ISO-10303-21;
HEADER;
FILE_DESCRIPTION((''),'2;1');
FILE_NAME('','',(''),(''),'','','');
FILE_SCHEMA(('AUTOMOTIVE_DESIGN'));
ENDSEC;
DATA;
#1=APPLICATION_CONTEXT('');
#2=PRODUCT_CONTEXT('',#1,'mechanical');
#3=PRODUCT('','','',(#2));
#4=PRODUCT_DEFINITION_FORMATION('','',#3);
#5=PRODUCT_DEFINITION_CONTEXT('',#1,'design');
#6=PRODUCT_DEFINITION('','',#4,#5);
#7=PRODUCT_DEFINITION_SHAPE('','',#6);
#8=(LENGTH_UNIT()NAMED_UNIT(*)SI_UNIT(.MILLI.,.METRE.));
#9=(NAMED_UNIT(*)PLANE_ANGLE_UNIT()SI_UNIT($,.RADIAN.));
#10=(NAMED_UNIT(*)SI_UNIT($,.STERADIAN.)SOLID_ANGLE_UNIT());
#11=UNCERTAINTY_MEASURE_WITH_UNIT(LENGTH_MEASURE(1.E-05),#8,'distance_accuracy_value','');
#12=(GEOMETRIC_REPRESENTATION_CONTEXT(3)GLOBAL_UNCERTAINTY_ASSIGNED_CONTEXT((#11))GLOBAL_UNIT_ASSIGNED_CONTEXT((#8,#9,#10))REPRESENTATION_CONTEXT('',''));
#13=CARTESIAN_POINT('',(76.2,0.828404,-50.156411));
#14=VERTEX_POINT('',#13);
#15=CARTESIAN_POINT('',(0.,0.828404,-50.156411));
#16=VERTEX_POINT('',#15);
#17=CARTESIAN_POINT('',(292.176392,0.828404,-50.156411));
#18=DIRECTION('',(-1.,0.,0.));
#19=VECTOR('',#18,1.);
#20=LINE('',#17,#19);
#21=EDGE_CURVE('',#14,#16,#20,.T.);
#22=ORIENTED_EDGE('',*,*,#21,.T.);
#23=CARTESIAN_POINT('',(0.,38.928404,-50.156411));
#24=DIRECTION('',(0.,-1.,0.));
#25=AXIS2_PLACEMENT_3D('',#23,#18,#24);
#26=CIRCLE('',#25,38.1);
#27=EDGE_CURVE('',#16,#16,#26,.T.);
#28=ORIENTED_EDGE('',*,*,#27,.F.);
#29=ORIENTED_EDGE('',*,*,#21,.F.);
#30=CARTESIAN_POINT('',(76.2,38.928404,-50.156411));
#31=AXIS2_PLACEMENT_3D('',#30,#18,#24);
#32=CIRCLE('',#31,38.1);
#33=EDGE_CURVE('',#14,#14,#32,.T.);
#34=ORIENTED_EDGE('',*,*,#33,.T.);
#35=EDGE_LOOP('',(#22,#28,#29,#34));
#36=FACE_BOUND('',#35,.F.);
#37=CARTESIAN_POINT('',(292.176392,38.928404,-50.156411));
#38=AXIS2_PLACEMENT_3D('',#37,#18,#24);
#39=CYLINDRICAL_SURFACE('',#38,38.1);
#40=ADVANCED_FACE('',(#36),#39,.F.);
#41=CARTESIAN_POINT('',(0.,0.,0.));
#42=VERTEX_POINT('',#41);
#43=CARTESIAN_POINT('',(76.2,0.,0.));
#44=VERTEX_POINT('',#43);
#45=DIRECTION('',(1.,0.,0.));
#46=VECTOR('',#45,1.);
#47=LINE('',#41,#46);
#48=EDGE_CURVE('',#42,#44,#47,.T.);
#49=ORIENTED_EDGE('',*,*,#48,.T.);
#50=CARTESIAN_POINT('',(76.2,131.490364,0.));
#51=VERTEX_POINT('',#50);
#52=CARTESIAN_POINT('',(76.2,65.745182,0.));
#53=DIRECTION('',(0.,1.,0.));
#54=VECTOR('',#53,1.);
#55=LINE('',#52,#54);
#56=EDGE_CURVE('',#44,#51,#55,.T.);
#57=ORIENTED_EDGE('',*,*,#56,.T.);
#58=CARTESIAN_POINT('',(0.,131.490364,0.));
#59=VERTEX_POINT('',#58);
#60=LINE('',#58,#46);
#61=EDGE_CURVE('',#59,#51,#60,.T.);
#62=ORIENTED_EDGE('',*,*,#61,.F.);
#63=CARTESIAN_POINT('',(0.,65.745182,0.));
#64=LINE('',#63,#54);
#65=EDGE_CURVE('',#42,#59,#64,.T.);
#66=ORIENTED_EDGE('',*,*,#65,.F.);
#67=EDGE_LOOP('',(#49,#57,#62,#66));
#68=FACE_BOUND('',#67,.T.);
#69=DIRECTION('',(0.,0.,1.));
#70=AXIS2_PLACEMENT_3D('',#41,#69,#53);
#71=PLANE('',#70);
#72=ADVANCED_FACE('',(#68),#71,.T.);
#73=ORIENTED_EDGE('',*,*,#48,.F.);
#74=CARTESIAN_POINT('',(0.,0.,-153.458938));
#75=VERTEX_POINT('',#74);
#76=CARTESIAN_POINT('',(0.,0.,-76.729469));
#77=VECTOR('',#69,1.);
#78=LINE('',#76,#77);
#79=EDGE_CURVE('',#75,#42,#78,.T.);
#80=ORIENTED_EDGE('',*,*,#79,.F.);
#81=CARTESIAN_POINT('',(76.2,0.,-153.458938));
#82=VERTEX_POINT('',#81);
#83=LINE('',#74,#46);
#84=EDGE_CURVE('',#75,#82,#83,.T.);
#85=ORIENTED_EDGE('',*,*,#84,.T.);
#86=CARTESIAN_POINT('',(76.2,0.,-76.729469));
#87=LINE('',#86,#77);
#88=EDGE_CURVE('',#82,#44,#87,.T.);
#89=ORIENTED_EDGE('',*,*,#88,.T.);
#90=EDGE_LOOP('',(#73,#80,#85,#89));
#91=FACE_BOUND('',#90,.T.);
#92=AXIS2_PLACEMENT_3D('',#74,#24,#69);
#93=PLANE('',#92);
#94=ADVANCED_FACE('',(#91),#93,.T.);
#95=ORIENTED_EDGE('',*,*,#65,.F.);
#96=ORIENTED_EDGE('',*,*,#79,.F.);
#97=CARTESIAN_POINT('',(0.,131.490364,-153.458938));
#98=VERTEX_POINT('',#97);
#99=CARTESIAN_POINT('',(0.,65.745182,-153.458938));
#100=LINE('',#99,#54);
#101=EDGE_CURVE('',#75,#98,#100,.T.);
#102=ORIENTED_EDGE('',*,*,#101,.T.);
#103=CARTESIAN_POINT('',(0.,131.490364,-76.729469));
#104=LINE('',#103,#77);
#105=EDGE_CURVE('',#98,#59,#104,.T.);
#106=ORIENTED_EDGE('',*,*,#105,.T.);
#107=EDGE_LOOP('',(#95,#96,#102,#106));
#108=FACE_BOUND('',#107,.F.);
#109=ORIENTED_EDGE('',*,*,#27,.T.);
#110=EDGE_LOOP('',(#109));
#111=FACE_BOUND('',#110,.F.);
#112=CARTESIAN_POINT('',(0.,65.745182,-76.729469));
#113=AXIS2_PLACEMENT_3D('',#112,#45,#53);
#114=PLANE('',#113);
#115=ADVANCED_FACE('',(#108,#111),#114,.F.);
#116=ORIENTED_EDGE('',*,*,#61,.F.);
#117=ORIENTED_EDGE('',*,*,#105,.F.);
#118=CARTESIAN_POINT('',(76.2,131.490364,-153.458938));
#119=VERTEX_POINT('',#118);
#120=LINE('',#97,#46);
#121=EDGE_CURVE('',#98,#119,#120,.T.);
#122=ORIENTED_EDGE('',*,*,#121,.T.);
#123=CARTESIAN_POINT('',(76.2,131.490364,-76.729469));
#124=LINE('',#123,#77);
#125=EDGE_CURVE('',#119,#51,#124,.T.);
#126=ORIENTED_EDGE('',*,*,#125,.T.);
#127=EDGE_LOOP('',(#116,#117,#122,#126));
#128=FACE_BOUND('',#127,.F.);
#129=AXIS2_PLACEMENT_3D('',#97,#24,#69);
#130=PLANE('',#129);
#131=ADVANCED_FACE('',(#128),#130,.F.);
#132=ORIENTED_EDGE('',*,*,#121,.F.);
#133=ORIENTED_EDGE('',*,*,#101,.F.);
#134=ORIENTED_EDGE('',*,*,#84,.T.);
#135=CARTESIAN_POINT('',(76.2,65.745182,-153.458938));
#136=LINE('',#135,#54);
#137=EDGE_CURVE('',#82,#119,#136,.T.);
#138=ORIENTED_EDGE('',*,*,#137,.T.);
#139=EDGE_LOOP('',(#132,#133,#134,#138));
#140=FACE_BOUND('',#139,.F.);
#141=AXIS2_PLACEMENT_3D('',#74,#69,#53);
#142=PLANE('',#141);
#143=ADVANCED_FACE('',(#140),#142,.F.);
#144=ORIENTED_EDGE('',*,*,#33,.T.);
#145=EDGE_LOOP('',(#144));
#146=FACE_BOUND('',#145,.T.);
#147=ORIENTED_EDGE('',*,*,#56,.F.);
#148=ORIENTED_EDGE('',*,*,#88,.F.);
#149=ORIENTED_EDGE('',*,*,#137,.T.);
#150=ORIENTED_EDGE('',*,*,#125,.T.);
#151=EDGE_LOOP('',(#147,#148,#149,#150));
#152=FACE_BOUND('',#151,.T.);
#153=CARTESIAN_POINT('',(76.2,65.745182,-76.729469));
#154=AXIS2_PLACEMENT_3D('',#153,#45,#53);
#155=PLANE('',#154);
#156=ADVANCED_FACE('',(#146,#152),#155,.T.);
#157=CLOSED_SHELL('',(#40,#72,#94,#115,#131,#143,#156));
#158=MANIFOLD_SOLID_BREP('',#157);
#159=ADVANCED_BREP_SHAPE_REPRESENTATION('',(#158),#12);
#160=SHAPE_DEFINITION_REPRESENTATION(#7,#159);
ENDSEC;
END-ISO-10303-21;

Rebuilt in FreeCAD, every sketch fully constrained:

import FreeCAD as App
import Part
import Sketcher

V = App.Vector
Q = App.Units.Quantity

doc = App.newDocument("Part")
params = doc.addObject("Spreadsheet::Sheet", "Params")
for row, (alias, value) in enumerate([
    ("pad1_length", "3 in"),
    ("sketch2_diameter", "3 in"),
    ("hole_diameter", "3 in"),
], start=1):
    params.set(f"A{row}", alias)
    params.set(f"B{row}", "=" + value)
    params.setAlias(f"B{row}", alias)

body = doc.addObject("PartDesign::Body", "Body")

sketch1 = body.newObject("Sketcher::SketchObject", "Sketch")
sketch1.AttachmentSupport = (doc.getObject("YZ_Plane"), [""])
sketch1.MapMode = "FlatFace"
sketch1.addGeometry(Part.LineSegment(V(0, 0, 0), V(0, -153, 0)), False)
sketch1.addGeometry(Part.LineSegment(V(0, -153, 0), V(131, -153, 0)), False)
sketch1.addGeometry(Part.LineSegment(V(131, -153, 0), V(131, 0, 0)), False)
sketch1.addGeometry(Part.LineSegment(V(131, 0, 0), V(0, 0, 0)), False)
sketch1.addConstraint(Sketcher.Constraint("Coincident", 0, 2, 1, 1))
sketch1.addConstraint(Sketcher.Constraint("Coincident", 1, 2, 2, 1))
sketch1.addConstraint(Sketcher.Constraint("Coincident", 2, 2, 3, 1))
sketch1.addConstraint(Sketcher.Constraint("Coincident", 3, 2, 0, 1))
sketch1.addConstraint(Sketcher.Constraint("Vertical", 0))
sketch1.addConstraint(Sketcher.Constraint("Horizontal", 1))
sketch1.addConstraint(Sketcher.Constraint("Vertical", 2))
sketch1.addConstraint(Sketcher.Constraint("Horizontal", 3))
sketch1.addConstraint(Sketcher.Constraint("Coincident", 3, 2, -1, 1))
sketch1.addConstraint(Sketcher.Constraint("DistanceX", 1, 1, 1, 2, Q("131.490365 mm")))
sketch1.addConstraint(Sketcher.Constraint("DistanceY", 0, 2, 0, 1, Q("153.458938 mm")))
pad1 = body.newObject("PartDesign::Pad", "Pad")
pad1.Profile = sketch1
pad1.setExpression("Length", "Params.pad1_length")

sketch2 = body.newObject("Sketcher::SketchObject", "Sketch001")
sketch2.AttachmentSupport = (doc.getObject("YZ_Plane"), [""])
sketch2.MapMode = "FlatFace"
sketch2.AttachmentOffset = App.Placement(V(0, 0, 3 * 25.4), App.Rotation())
sketch2.addGeometry(Part.Circle(V(39, -50, 0), V(0, 0, 1), 38), False)
sketch2.addConstraint(Sketcher.Constraint("Diameter", 0, Q("3 in")))
sketch2.addConstraint(Sketcher.Constraint("DistanceY", 0, 3, -1, 1, Q("50.156411 mm")))
sketch2.addConstraint(Sketcher.Constraint("DistanceX", -1, 1, 0, 3, Q("38.928404 mm")))
sketch2.setExpression("Constraints[0]", "Params.sketch2_diameter")
doc.recompute()
hole = body.newObject("PartDesign::Hole", "Hole")
hole.Profile = sketch2
hole.ThreadType = "None"
hole.setExpression("Diameter", "Params.hole_diameter")
hole.DepthType = "ThroughAll"

doc.recompute()
